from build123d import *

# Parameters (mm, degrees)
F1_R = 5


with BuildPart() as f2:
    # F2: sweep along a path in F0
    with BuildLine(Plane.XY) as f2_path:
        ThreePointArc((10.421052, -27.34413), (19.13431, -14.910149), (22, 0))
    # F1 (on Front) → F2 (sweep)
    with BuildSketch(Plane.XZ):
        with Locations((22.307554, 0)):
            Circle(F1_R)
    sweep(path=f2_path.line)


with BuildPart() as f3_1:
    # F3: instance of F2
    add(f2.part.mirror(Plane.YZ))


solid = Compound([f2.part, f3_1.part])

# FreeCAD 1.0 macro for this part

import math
import FreeCAD as App
import Part
import Sketcher
Q = App.Units.Quantity

doc = App.newDocument("Part")
body = doc.addObject("PartDesign::Body", "Body")

sketch1 = body.newObject("Sketcher::SketchObject", "Sketch")
sketch1.AttachmentSupport = (doc.getObject("XZ_Plane"), [""])
sketch1.MapMode = "FlatFace"
sketch1.addGeometry(Part.Circle(App.Vector(22, 0, 0), App.Vector(0, 0, 1), 5), False)
sketch1.addConstraint([
    Sketcher.Constraint("PointOnObject", 0, 3, -1),
    Sketcher.Constraint("Diameter", 0, Q("10 mm")),
    Sketcher.Constraint("DistanceX", -1, 1, 0, 3, Q("22.307554 mm")),
])

sketch2 = body.newObject("Sketcher::SketchObject", "Sketch001")
sketch2.AttachmentSupport = (doc.getObject("XY_Plane"), [""])
sketch2.MapMode = "FlatFace"
sketch2.addGeometry(Part.ArcOfCircle(Part.Circle(App.Vector(-14, -1, 0), App.Vector(0, 0, 1), 36), math.radians(-47), math.radians(1)), False)
sketch2.addConstraint([
    Sketcher.Constraint("PointOnObject", 0, 2, -1),
    Sketcher.Constraint("DistanceX", -1, 1, 0, 2, Q("22 mm")),
    Sketcher.Constraint("Radius", 0, Q("36.301776 mm")),
    Sketcher.Constraint("DistanceY", 0, 3, -1, 1, Q("0.75487 mm")),
    Sketcher.Constraint("DistanceY", 0, 1, -1, 1, Q("27.34413 mm")),
])
doc.recompute()

additivepipe = body.newObject("PartDesign::AdditivePipe", "AdditivePipe")
additivepipe.Profile = sketch1
additivepipe.Spine = (sketch2, ["Edge1"])
body2 = doc.addObject("PartDesign::Body", "Body001")
doc.recompute()

mirroring = doc.addObject("Part::Mirroring", "Mirroring")
mirroring.Source = body
mirroring.Base = App.Vector(0, 0, 0)
mirroring.Normal = App.Vector(1, 0, 0)
body2.BaseFeature = mirroring
doc.recompute()
mirroring.Visibility = False

doc.recompute()
